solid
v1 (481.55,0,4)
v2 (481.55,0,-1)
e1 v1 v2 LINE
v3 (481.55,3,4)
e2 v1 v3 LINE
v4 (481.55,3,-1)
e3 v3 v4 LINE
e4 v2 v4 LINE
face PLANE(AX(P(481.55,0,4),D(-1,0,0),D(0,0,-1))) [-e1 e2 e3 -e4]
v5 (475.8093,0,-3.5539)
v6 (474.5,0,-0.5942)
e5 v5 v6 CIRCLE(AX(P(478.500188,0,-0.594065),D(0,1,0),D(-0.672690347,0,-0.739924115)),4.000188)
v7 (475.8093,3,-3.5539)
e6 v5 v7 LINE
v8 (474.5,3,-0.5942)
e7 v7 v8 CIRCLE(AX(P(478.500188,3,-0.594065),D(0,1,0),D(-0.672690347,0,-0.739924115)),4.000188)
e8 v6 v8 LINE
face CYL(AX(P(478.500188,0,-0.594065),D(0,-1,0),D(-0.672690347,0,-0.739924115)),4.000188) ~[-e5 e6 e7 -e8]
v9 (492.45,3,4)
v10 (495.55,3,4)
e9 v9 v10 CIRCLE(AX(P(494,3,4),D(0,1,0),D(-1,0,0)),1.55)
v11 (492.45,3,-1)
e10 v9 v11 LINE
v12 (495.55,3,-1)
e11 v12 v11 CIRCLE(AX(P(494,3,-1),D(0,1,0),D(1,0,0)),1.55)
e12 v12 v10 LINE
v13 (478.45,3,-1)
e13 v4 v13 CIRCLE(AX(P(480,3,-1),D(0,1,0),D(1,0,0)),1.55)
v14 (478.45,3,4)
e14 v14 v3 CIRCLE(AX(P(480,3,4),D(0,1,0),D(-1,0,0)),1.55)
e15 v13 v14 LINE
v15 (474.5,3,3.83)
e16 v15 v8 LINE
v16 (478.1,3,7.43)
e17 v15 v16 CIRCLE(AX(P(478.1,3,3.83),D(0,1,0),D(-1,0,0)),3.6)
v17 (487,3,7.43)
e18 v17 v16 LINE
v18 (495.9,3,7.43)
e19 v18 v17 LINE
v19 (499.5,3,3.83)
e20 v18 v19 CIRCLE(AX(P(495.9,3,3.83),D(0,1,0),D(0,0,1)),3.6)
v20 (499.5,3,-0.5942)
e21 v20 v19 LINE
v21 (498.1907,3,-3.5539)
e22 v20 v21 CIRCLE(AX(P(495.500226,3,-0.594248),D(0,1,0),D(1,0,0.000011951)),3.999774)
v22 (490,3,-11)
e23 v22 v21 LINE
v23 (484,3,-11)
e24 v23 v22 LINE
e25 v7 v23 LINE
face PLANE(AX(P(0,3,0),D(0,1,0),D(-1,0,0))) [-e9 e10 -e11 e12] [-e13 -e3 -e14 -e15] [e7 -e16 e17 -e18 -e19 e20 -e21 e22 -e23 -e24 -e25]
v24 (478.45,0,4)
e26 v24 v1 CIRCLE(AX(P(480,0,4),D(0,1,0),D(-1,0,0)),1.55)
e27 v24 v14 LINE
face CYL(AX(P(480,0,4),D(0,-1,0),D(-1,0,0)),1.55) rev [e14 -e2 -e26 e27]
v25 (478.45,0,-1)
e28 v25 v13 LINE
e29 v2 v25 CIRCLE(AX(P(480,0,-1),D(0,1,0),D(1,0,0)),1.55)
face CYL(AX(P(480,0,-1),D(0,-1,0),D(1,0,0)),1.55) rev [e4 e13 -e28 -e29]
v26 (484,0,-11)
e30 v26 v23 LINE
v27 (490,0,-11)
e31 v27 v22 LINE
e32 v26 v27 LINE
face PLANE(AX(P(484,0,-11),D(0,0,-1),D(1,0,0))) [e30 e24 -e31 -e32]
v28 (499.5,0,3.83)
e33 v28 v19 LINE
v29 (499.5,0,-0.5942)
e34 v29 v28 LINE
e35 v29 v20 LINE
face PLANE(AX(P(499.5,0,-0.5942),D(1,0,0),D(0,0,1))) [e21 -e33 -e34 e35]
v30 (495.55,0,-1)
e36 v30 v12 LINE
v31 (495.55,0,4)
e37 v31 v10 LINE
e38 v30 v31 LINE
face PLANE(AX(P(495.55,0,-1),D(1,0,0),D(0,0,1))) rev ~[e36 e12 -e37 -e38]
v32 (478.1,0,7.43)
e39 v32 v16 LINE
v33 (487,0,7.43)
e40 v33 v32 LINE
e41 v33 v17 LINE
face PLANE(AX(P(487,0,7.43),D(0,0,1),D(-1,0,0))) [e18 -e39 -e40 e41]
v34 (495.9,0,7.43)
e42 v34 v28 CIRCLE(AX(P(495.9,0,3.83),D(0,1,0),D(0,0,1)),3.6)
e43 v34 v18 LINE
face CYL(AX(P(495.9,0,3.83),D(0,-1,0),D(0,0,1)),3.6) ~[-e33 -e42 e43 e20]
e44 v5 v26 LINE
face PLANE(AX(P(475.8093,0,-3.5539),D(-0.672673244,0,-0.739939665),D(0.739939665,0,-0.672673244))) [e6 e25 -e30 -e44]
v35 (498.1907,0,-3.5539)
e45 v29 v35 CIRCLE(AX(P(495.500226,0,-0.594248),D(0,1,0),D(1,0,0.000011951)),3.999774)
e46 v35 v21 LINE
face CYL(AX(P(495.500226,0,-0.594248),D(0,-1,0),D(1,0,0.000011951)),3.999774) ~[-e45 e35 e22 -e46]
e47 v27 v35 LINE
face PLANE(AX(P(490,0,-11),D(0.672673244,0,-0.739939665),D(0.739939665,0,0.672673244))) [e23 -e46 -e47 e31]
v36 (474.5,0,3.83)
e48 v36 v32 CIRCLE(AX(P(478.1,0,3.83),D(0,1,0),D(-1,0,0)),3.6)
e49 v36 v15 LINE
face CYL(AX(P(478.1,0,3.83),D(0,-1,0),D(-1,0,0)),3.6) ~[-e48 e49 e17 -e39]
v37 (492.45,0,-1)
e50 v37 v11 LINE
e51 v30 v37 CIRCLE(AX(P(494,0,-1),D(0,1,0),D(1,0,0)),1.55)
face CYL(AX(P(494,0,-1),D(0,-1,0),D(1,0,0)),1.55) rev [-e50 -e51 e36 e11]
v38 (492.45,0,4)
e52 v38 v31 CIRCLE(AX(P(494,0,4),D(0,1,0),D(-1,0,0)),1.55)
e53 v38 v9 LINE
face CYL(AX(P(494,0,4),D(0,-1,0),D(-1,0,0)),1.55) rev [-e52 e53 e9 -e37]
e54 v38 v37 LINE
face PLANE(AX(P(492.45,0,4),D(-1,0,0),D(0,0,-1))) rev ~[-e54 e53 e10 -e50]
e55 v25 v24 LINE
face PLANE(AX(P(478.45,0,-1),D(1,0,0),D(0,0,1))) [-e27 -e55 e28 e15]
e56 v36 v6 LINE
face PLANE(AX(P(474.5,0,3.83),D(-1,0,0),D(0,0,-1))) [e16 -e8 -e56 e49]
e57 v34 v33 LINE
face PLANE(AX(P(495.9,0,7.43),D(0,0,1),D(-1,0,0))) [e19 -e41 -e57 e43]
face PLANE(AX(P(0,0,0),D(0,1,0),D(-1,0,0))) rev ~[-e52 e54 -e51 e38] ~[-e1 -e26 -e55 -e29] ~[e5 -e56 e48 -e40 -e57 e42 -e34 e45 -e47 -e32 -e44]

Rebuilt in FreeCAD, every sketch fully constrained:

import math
import FreeCAD as App
import Part
import Sketcher
Q = App.Units.Quantity

doc = App.newDocument("Part")
body = doc.addObject("PartDesign::Body", "Body")

sketch1 = body.newObject("Sketcher::SketchObject", "Sketch")
sketch1.AttachmentSupport = (doc.getObject("XZ_Plane"), [""])
sketch1.MapMode = "FlatFace"
sketch1.addGeometry(Part.LineSegment(App.Vector(478.1, 7.4, 0), App.Vector(495.9, 7.4, 0)), False)
sketch1.addGeometry(Part.ArcOfCircle(Part.Circle(App.Vector(495.9, 3.8, 0), App.Vector(0, 0, 1), 3.6), math.radians(0), math.radians(90)), False)
sketch1.addGeometry(Part.LineSegment(App.Vector(499.5, 3.8, 0), App.Vector(499.5, -0.6, 0)), False)
sketch1.addGeometry(Part.ArcOfCircle(Part.Circle(App.Vector(495.5, -0.6, 0), App.Vector(0, 0, 1), 4), math.radians(-48), math.radians(0)), False)
sketch1.addGeometry(Part.LineSegment(App.Vector(498.2, -3.6, 0), App.Vector(490, -11, 0)), False)
sketch1.addGeometry(Part.LineSegment(App.Vector(490, -11, 0), App.Vector(484, -11, 0)), False)
sketch1.addGeometry(Part.LineSegment(App.Vector(484, -11, 0), App.Vector(475.8, -3.6, 0)), False)
sketch1.addGeometry(Part.ArcOfCircle(Part.Circle(App.Vector(478.5, -0.6, 0), App.Vector(0, 0, 1), 4), math.radians(180), math.radians(228)), False)
sketch1.addGeometry(Part.LineSegment(App.Vector(474.5, -0.6, 0), App.Vector(474.5, 3.8, 0)), False)
sketch1.addGeometry(Part.ArcOfCircle(Part.Circle(App.Vector(478.1, 3.8, 0), App.Vector(0, 0, 1), 3.6), math.radians(90), math.radians(180)), False)
sketch1.addGeometry(Part.ArcOfCircle(Part.Circle(App.Vector(494, 4, 0), App.Vector(0, 0, 1), 1.6), math.radians(0), math.radians(180)), False)
sketch1.addGeometry(Part.LineSegment(App.Vector(492.4, 4, 0), App.Vector(492.4, -1, 0)), False)
sketch1.addGeometry(Part.ArcOfCircle(Part.Circle(App.Vector(494, -1, 0), App.Vector(0, 0, 1), 1.6), math.radians(180), math.radians(360)), False)
sketch1.addGeometry(Part.LineSegment(App.Vector(495.6, -1, 0), App.Vector(495.6, 4, 0)), False)
sketch1.addGeometry(Part.ArcOfCircle(Part.Circle(App.Vector(480, 4, 0), App.Vector(0, 0, 1), 1.6), math.radians(0), math.radians(180)), False)
sketch1.addGeometry(Part.LineSegment(App.Vector(478.4, 4, 0), App.Vector(478.4, -1, 0)), False)
sketch1.addGeometry(Part.ArcOfCircle(Part.Circle(App.Vector(480, -1, 0), App.Vector(0, 0, 1), 1.6), math.radians(180), math.radians(360)), False)
sketch1.addGeometry(Part.LineSegment(App.Vector(481.6, -1, 0), App.Vector(481.6, 4, 0)), False)
sketch1.addConstraint(Sketcher.Constraint("Tangent", 0, 2, 1, 2))
sketch1.addConstraint(Sketcher.Constraint("Tangent", 1, 1, 2, 1))
sketch1.addConstraint(Sketcher.Constraint("Tangent", 2, 2, 3, 2))
sketch1.addConstraint(Sketcher.Constraint("Tangent", 3, 1, 4, 1))
sketch1.addConstraint(Sketcher.Constraint("Coincident", 4, 2, 5, 1))
sketch1.addConstraint(Sketcher.Constraint("Coincident", 5, 2, 6, 1))
sketch1.addConstraint(Sketcher.Constraint("Tangent", 6, 2, 7, 2))
sketch1.addConstraint(Sketcher.Constraint("Tangent", 7, 1, 8, 1))
sketch1.addConstraint(Sketcher.Constraint("Tangent", 8, 2, 9, 2))
sketch1.addConstraint(Sketcher.Constraint("Tangent", 9, 1, 0, 1))
sketch1.addConstraint(Sketcher.Constraint("Tangent", 10, 2, 11, 1))
sketch1.addConstraint(Sketcher.Constraint("Tangent", 11, 2, 12, 1))
sketch1.addConstraint(Sketcher.Constraint("Tangent", 12, 2, 13, 1))
sketch1.addConstraint(Sketcher.Constraint("Tangent", 13, 2, 10, 1))
sketch1.addConstraint(Sketcher.Constraint("Tangent", 14, 2, 15, 1))
sketch1.addConstraint(Sketcher.Constraint("Tangent", 15, 2, 16, 1))
sketch1.addConstraint(Sketcher.Constraint("Tangent", 16, 2, 17, 1))
sketch1.addConstraint(Sketcher.Constraint("Tangent", 17, 2, 14, 1))
sketch1.addConstraint(Sketcher.Constraint("Horizontal", 0))
sketch1.addConstraint(Sketcher.Constraint("Vertical", 2))
sketch1.addConstraint(Sketcher.Constraint("Horizontal", 5))
sketch1.addConstraint(Sketcher.Constraint("Vertical", 8))
sketch1.addConstraint(Sketcher.Constraint("Vertical", 11))
sketch1.addConstraint(Sketcher.Constraint("Vertical", 13))
sketch1.addConstraint(Sketcher.Constraint("Vertical", 15))
sketch1.addConstraint(Sketcher.Constraint("Vertical", 17))
sketch1.addConstraint(Sketcher.Constraint("Equal", 3, 7))
sketch1.addConstraint(Sketcher.Constraint("Equal", 1, 9))
sketch1.addConstraint(Sketcher.Constraint("Equal", 12, 14))
sketch1.addConstraint(Sketcher.Constraint("Horizontal", 3, 3, 7, 3))
sketch1.addConstraint(Sketcher.Constraint("Horizontal", 10, 3, 14, 3))
sketch1.addConstraint(Sketcher.Constraint("Horizontal", 12, 3, 16, 3))
sketch1.addConstraint(Sketcher.Constraint("Horizontal", 3, 1, 6, 2))
sketch1.addConstraint(Sketcher.Constraint("Radius", 3, Q("4 mm")))
sketch1.addConstraint(Sketcher.Constraint("Radius", 1, Q("3.6 mm")))
sketch1.addConstraint(Sketcher.Constraint("DistanceX", 5, 2, 5, 1, Q("6 mm")))
sketch1.addConstraint(Sketcher.Constraint("DistanceY", 11, 2, 11, 1, Q("5 mm")))
sketch1.addConstraint(Sketcher.Constraint("Radius", 10, Q("1.55 mm")))
sketch1.addConstraint(Sketcher.Constraint("DistanceX", 0, 1, 0, 2, Q("17.8 mm")))
sketch1.addConstraint(Sketcher.Constraint("DistanceX", -1, 1, 10, 3, Q("494 mm")))
sketch1.addConstraint(Sketcher.Constraint("DistanceY", -1, 1, 10, 3, Q("4 mm")))
sketch1.addConstraint(Sketcher.Constraint("DistanceX", -1, 1, 14, 3, Q("480 mm")))
sketch1.addConstraint(Sketcher.Constraint("DistanceX", -1, 1, 4, 2, Q("490 mm")))
sketch1.addConstraint(Sketcher.Constraint("DistanceY", 4, 2, -1, 1, Q("11 mm")))
sketch1.addConstraint(Sketcher.Constraint("DistanceY", -1, 1, 1, 3, Q("3.83 mm")))
sketch1.addConstraint(Sketcher.Constraint("DistanceY", 2, 2, 2, 1, Q("4.4242 mm")))
pad1 = body.newObject("PartDesign::Pad", "Pad")
pad1.Profile = sketch1
pad1.Length = 3
pad1.Reversed = True

doc.recompute()
